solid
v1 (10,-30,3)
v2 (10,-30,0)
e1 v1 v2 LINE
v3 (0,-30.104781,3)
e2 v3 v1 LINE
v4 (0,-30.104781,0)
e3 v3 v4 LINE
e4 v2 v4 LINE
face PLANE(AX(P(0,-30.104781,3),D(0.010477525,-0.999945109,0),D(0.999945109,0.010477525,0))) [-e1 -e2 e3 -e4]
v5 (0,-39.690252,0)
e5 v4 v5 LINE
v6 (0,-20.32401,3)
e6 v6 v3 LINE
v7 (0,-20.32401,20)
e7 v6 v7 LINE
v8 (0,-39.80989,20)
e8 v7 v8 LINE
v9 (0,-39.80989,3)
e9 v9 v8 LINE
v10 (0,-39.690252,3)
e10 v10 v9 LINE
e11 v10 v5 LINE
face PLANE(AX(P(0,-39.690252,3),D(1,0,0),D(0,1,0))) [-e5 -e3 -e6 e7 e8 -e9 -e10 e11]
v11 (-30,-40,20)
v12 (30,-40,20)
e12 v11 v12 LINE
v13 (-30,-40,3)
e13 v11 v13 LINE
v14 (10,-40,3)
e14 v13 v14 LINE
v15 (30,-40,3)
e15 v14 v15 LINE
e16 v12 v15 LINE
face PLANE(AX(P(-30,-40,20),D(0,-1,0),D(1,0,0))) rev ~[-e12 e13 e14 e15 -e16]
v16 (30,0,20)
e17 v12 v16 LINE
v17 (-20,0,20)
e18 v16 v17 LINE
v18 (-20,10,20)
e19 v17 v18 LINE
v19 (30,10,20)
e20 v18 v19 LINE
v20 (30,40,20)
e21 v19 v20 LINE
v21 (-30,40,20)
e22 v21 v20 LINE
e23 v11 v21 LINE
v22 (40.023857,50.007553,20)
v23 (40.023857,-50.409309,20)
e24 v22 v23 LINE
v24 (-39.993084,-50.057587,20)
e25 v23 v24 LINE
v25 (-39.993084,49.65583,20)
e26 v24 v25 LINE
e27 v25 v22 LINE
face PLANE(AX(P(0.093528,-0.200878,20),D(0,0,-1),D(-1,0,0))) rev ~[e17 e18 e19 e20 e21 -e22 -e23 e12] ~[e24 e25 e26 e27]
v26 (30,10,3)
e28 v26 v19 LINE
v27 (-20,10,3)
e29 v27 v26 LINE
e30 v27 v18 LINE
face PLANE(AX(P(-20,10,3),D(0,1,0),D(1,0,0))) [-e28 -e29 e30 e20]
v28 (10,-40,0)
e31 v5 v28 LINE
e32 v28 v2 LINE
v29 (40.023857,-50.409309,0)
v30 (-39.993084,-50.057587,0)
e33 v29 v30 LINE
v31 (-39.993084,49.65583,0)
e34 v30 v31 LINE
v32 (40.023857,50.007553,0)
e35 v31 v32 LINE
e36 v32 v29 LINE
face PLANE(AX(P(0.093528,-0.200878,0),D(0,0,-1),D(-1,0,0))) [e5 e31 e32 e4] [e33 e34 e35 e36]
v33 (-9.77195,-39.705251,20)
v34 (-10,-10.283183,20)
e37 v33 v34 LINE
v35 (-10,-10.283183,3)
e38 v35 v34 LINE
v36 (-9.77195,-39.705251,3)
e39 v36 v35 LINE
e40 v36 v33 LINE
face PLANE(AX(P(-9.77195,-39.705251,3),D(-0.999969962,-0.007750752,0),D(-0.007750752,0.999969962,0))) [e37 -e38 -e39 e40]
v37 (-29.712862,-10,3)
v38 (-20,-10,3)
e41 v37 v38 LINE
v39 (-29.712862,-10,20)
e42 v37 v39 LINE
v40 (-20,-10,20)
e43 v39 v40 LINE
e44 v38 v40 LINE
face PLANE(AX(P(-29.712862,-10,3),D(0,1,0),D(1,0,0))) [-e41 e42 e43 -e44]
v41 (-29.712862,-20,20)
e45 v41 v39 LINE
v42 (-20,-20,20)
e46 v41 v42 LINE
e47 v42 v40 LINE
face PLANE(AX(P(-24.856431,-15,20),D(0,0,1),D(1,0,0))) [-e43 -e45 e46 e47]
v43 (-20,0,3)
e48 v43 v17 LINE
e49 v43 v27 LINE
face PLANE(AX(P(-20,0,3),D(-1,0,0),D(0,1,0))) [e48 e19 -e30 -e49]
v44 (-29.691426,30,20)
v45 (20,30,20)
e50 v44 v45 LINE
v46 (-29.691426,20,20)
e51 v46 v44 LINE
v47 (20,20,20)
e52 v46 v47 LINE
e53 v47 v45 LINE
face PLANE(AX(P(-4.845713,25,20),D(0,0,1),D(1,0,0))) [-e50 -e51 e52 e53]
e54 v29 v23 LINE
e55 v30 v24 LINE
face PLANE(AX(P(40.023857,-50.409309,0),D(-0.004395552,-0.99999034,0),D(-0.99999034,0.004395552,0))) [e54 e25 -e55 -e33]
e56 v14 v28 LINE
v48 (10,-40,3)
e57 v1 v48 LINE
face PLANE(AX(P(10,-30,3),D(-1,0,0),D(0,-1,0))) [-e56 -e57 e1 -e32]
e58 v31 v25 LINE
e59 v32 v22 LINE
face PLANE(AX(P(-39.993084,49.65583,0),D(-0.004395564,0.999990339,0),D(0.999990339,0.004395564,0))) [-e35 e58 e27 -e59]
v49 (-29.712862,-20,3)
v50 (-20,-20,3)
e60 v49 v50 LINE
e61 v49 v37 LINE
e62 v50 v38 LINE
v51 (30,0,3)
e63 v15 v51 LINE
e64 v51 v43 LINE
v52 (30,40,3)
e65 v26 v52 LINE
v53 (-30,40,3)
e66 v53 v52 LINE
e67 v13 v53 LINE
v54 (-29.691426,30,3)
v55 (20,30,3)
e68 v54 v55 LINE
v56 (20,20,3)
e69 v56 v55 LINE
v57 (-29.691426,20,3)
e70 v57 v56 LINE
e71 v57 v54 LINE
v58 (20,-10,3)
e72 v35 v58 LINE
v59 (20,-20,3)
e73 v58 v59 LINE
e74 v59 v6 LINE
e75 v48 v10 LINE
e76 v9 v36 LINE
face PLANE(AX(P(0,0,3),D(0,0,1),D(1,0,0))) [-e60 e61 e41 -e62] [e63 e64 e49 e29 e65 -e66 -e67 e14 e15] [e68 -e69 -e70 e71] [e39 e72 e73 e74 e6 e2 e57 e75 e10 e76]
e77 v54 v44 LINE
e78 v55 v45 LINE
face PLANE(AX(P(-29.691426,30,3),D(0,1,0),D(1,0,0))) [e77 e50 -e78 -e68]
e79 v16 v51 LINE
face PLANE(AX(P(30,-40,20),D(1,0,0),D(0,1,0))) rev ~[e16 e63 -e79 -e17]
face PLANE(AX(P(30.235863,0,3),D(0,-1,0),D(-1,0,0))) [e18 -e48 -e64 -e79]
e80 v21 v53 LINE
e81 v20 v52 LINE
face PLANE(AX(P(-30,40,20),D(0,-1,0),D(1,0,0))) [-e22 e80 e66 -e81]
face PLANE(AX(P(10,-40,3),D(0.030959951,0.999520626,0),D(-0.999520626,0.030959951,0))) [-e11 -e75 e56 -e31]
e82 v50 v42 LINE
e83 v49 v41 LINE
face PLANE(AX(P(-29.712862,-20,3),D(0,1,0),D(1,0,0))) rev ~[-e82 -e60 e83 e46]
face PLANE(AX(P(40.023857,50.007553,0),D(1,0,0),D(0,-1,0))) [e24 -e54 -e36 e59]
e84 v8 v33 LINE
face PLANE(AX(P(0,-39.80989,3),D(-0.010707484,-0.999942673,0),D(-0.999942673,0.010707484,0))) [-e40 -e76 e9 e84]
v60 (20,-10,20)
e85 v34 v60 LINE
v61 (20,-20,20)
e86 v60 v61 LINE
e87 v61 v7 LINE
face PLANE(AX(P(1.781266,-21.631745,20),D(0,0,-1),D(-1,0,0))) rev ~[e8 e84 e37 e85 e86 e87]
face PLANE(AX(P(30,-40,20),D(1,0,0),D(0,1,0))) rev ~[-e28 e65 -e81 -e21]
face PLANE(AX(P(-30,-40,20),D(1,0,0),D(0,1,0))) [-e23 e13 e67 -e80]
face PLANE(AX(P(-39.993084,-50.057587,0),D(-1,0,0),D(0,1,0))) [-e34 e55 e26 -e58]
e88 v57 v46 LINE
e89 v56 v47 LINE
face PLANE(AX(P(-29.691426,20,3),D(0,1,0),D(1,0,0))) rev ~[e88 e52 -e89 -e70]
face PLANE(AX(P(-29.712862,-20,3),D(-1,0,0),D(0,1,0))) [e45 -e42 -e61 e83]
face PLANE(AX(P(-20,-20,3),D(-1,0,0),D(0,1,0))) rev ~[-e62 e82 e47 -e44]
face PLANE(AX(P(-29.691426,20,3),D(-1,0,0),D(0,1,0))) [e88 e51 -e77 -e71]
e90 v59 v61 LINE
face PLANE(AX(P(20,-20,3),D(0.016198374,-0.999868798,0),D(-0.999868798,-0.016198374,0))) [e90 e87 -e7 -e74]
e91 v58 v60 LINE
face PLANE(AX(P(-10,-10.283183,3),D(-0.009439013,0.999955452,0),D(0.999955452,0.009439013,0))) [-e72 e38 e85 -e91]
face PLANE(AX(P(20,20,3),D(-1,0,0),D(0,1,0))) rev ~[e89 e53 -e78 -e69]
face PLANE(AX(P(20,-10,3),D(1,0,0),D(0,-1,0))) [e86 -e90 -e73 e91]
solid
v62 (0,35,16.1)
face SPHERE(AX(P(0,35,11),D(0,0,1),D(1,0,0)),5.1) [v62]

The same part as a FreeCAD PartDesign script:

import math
import FreeCAD as App
import Part
import Sketcher
from FreeCAD import Vector
Q = App.Units.Quantity

doc = App.newDocument("Part")
params = doc.addObject("Spreadsheet::Sheet", "Params")
for row, (alias, value) in enumerate([
    ("pad1_length", "20 mm"),
    ("sketch2_width", "60 mm"),
    ("sketch2_height", "80 mm"),
    ("pocket1_length", "17 mm"),
    ("sketch3_width", "50 mm"),
    ("sketch3_height", "10 mm"),
    ("pad2_length", "17 mm"),
    ("sketch4_height", "10 mm"),
    ("pocket2_length", "5 mm"),
    ("sketch5_radius", "5.1 mm"),
    ("revolution_angle", "360 deg"),
], start=1):
    params.set(f"A{row}", alias)
    params.set(f"B{row}", "=" + value)
    params.setAlias(f"B{row}", alias)

body = doc.addObject("PartDesign::Body", "Body")

# Sketch on XY plane
sketch1 = body.newObject("Sketcher::SketchObject", "Sketch")
sketch1.AttachmentSupport = (doc.getObject("XY_Plane"), [""])
sketch1.MapMode = "FlatFace"
sketch1.addGeometry(Part.LineSegment(Vector(40, 50, 0), Vector(-40, 50, 0)), False)
sketch1.addGeometry(Part.LineSegment(Vector(-40, 50, 0), Vector(-40, -50, 0)), False)
sketch1.addGeometry(Part.LineSegment(Vector(-40, -50, 0), Vector(40, -50, 0)), False)
sketch1.addGeometry(Part.LineSegment(Vector(40, -50, 0), Vector(40, 50, 0)), False)
sketch1.addConstraint(Sketcher.Constraint("Coincident", 0, 2, 1, 1))
sketch1.addConstraint(Sketcher.Constraint("Coincident", 1, 2, 2, 1))
sketch1.addConstraint(Sketcher.Constraint("Coincident", 2, 2, 3, 1))
sketch1.addConstraint(Sketcher.Constraint("Coincident", 3, 2, 0, 1))
sketch1.addConstraint(Sketcher.Constraint("Vertical", 1))
sketch1.addConstraint(Sketcher.Constraint("Vertical", 3))
sketch1.addConstraint(Sketcher.Constraint("Equal", 0, 2))
sketch1.addConstraint(Sketcher.Constraint("DistanceY", 1, 2, 1, 1, Q("99.713417 mm")))
sketch1.addConstraint(Sketcher.Constraint("DistanceY", 3, 1, 3, 2, Q("100.416862 mm")))
sketch1.addConstraint(Sketcher.Constraint("DistanceY", -1, 1, 0, 2, Q("49.65583 mm")))
sketch1.addConstraint(Sketcher.Constraint("DistanceX", 1, 2, 2, 2, Q("80.016941 mm")))
sketch1.addConstraint(Sketcher.Constraint("DistanceX", 0, 2, -1, 1, Q("39.993084 mm")))
pad1 = body.newObject("PartDesign::Pad", "Pad")
pad1.Profile = sketch1
pad1.setExpression("Length", "Params.pad1_length")

# Sketch on XY plane
sketch2 = body.newObject("Sketcher::SketchObject", "Sketch001")
sketch2.AttachmentSupport = (doc.getObject("XY_Plane"), [""])
sketch2.MapMode = "FlatFace"
sketch2.AttachmentOffset = App.Placement(Vector(0, 0, 20), App.Rotation())
sketch2.addGeometry(Part.LineSegment(Vector(-30, 40, 0), Vector(-30, -40, 0)), False)
sketch2.addGeometry(Part.LineSegment(Vector(-30, -40, 0), Vector(30, -40, 0)), False)
sketch2.addGeometry(Part.LineSegment(Vector(30, -40, 0), Vector(30, 40, 0)), False)
sketch2.addGeometry(Part.LineSegment(Vector(30, 40, 0), Vector(-30, 40, 0)), False)
sketch2.addConstraint(Sketcher.Constraint("Coincident", 0, 2, 1, 1))
sketch2.addConstraint(Sketcher.Constraint("Coincident", 1, 2, 2, 1))
sketch2.addConstraint(Sketcher.Constraint("Coincident", 2, 2, 3, 1))
sketch2.addConstraint(Sketcher.Constraint("Coincident", 3, 2, 0, 1))
sketch2.addConstraint(Sketcher.Constraint("Vertical", 0))
sketch2.addConstraint(Sketcher.Constraint("Horizontal", 1))
sketch2.addConstraint(Sketcher.Constraint("Vertical", 2))
sketch2.addConstraint(Sketcher.Constraint("Horizontal", 3))
sketch2.addConstraint(Sketcher.Constraint("Symmetric", 0, 2, 2, 2, -1, 1))
sketch2.addConstraint(Sketcher.Constraint("DistanceX", 1, 1, 1, 2, Q("60 mm")))
sketch2.addConstraint(Sketcher.Constraint("DistanceY", 0, 2, 0, 1, Q("80 mm")))
sketch2.setExpression("Constraints[9]", "Params.sketch2_width")
sketch2.setExpression("Constraints[10]", "Params.sketch2_height")
pocket1 = body.newObject("PartDesign::Pocket", "Pocket")
pocket1.Profile = sketch2
pocket1.setExpression("Length", "Params.pocket1_length")

# Sketch on XY plane
sketch3 = body.newObject("Sketcher::SketchObject", "Sketch002")
sketch3.AttachmentSupport = (doc.getObject("XY_Plane"), [""])
sketch3.MapMode = "FlatFace"
sketch3.AttachmentOffset = App.Placement(Vector(0, 0, 3), App.Rotation())
sketch3.addGeometry(Part.LineSegment(Vector(-29.691426, 30, 0), Vector(-29.691426, 20, 0)), False)
sketch3.addGeometry(Part.LineSegment(Vector(-29.691426, 20, 0), Vector(20, 20, 0)), False)
sketch3.addGeometry(Part.LineSegment(Vector(20, 20, 0), Vector(20, 30, 0)), False)
sketch3.addGeometry(Part.LineSegment(Vector(20, 30, 0), Vector(-29.691426, 30, 0)), False)
sketch3.addGeometry(Part.LineSegment(Vector(-20, 0, 0), Vector(30.235863, 0, 0)), False)
sketch3.addGeometry(Part.LineSegment(Vector(30.235863, 0, 0), Vector(30, 10, 0)), False)
sketch3.addGeometry(Part.LineSegment(Vector(30, 10, 0), Vector(-20, 10, 0)), False)
sketch3.addGeometry(Part.LineSegment(Vector(-20, 10, 0), Vector(-20, 0, 0)), False)
sketch3.addGeometry(Part.LineSegment(Vector(-29.712862, -10, 0), Vector(-29.712862, -20, 0)), False)
sketch3.addGeometry(Part.LineSegment(Vector(-29.712862, -20, 0), Vector(-20, -20, 0)), False)
sketch3.addGeometry(Part.LineSegment(Vector(-20, -20, 0), Vector(-20, -10, 0)), False)
sketch3.addGeometry(Part.LineSegment(Vector(-20, -10, 0), Vector(-29.712862, -10, 0)), False)
sketch3.addGeometry(Part.LineSegment(Vector(-10, -10.283183, 0), Vector(-9.77195, -39.705251, 0)), False)
sketch3.addGeometry(Part.LineSegment(Vector(-9.77195, -39.705251, 0), Vector(0, -39.80989, 0)), False)
sketch3.addGeometry(Part.LineSegment(Vector(0, -39.80989, 0), Vector(0, -20.32401, 0)), False)
sketch3.addGeometry(Part.LineSegment(Vector(0, -20.32401, 0), Vector(20, -20, 0)), False)
sketch3.addGeometry(Part.LineSegment(Vector(20, -20, 0), Vector(20, -10, 0)), False)
sketch3.addGeometry(Part.LineSegment(Vector(20, -10, 0), Vector(-10, -10.283183, 0)), False)
sketch3.addConstraint(Sketcher.Constraint("Coincident", 0, 2, 1, 1))
sketch3.addConstraint(Sketcher.Constraint("Coincident", 1, 2, 2, 1))
sketch3.addConstraint(Sketcher.Constraint("Coincident", 2, 2, 3, 1))
sketch3.addConstraint(Sketcher.Constraint("Coincident", 3, 2, 0, 1))
sketch3.addConstraint(Sketcher.Constraint("Coincident", 4, 2, 5, 1))
sketch3.addConstraint(Sketcher.Constraint("Coincident", 5, 2, 6, 1))
sketch3.addConstraint(Sketcher.Constraint("Coincident", 6, 2, 7, 1))
sketch3.addConstraint(Sketcher.Constraint("Coincident", 7, 2, 4, 1))
sketch3.addConstraint(Sketcher.Constraint("Coincident", 8, 2, 9, 1))
sketch3.addConstraint(Sketcher.Constraint("Coincident", 9, 2, 10, 1))
sketch3.addConstraint(Sketcher.Constraint("Coincident", 10, 2, 11, 1))
sketch3.addConstraint(Sketcher.Constraint("Coincident", 11, 2, 8, 1))
sketch3.addConstraint(Sketcher.Constraint("Coincident", 12, 2, 13, 1))
sketch3.addConstraint(Sketcher.Constraint("Coincident", 13, 2, 14, 1))
sketch3.addConstraint(Sketcher.Constraint("Coincident", 14, 2, 15, 1))
sketch3.addConstraint(Sketcher.Constraint("Coincident", 15, 2, 16, 1))
sketch3.addConstraint(Sketcher.Constraint("Coincident", 16, 2, 17, 1))
sketch3.addConstraint(Sketcher.Constraint("Coincident", 17, 2, 12, 1))
sketch3.addConstraint(Sketcher.Constraint("Vertical", 0))
sketch3.addConstraint(Sketcher.Constraint("Horizontal", 1))
sketch3.addConstraint(Sketcher.Constraint("Vertical", 2))
sketch3.addConstraint(Sketcher.Constraint("Horizontal", 3))
sketch3.addConstraint(Sketcher.Constraint("Horizontal", 4))
sketch3.addConstraint(Sketcher.Constraint("Horizontal", 6))
sketch3.addConstraint(Sketcher.Constraint("Vertical", 7))
sketch3.addConstraint(Sketcher.Constraint("Vertical", 8))
sketch3.addConstraint(Sketcher.Constraint("Horizontal", 9))
sketch3.addConstraint(Sketcher.Constraint("Vertical", 10))
sketch3.addConstraint(Sketcher.Constraint("Horizontal", 11))
sketch3.addConstraint(Sketcher.Constraint("Vertical", 14))
sketch3.addConstraint(Sketcher.Constraint("Vertical", 16))
sketch3.addConstraint(Sketcher.Constraint("Symmetric", 1, 2, 9, 2, -1, 1))
sketch3.addConstraint(Sketcher.Constraint("Symmetric", 6, 2, 16, 2, -1, 1))
sketch3.addConstraint(Sketcher.Constraint("Symmetric", 9, 2, 15, 2, -2))
sketch3.addConstraint(Sketcher.Constraint("PointOnObject", 4, 2, -1))
sketch3.addConstraint(Sketcher.Constraint("PointOnObject", 13, 2, -2))
sketch3.addConstraint(Sketcher.Constraint("Horizontal", 11, 2, 16, 2))
sketch3.addConstraint(Sketcher.Constraint("Equal", 2, 7))
sketch3.addConstraint(Sketcher.Constraint("Equal", 7, 8))
sketch3.addConstraint(Sketcher.Constraint("DistanceX", 6, 2, 6, 1, Q("50 mm")))
sketch3.addConstraint(Sketcher.Constraint("DistanceY", 0, 2, 0, 1, Q("10 mm")))
sketch3.addConstraint(Sketcher.Constraint("DistanceX", -1, 1, 1, 2, Q("20 mm")))
sketch3.addConstraint(Sketcher.Constraint("DistanceX", 17, 2, -1, 1, Q("10 mm")))
sketch3.addConstraint(Sketcher.Constraint("DistanceY", 14, 1, 14, 2, Q("19.48588 mm")))
sketch3.addConstraint(Sketcher.Constraint("Distance", 5, Q("10.002781 mm")))
sketch3.addConstraint(Sketcher.Constraint("Distance", 12, Q("29.422952 mm")))
sketch3.addConstraint(Sketcher.Constraint("Distance", 13, Q("9.77251 mm")))
sketch3.addConstraint(Sketcher.Constraint("DistanceX", 1, 1, 1, 2, Q("49.691427 mm")))
sketch3.addConstraint(Sketcher.Constraint("DistanceX", 9, 1, 9, 2, Q("9.712863 mm")))
sketch3.addConstraint(Sketcher.Constraint("DistanceX", 12, 2, -1, 1, Q("9.77195 mm")))
sketch3.addConstraint(Sketcher.Constraint("DistanceY", 12, 2, -1, 1, Q("39.705251 mm")))
sketch3.setExpression("Constraints[39]", "Params.sketch3_width")
sketch3.setExpression("Constraints[40]", "Params.sketch3_height")
pad2 = body.newObject("PartDesign::Pad", "Pad001")
pad2.Profile = sketch3
pad2.setExpression("Length", "Params.pad2_length")

# Sketch on XY plane
sketch4 = body.newObject("Sketcher::SketchObject", "Sketch003")
sketch4.AttachmentSupport = (doc.getObject("XY_Plane"), [""])
sketch4.MapMode = "FlatFace"
sketch4.AttachmentOffset = App.Placement(Vector(0, 0, 3), App.Rotation())
sketch4.addGeometry(Part.LineSegment(Vector(10, -30, 0), Vector(0, -30, 0)), False)
sketch4.addGeometry(Part.LineSegment(Vector(0, -30, 0), Vector(0, -40, 0)), False)
sketch4.addGeometry(Part.LineSegment(Vector(0, -40, 0), Vector(10, -40, 0)), False)
sketch4.addGeometry(Part.LineSegment(Vector(10, -40, 0), Vector(10, -30, 0)), False)
sketch4.addConstraint(Sketcher.Constraint("Coincident", 0, 2, 1, 1))
sketch4.addConstraint(Sketcher.Constraint("Coincident", 1, 2, 2, 1))
sketch4.addConstraint(Sketcher.Constraint("Coincident", 2, 2, 3, 1))
sketch4.addConstraint(Sketcher.Constraint("Coincident", 3, 2, 0, 1))
sketch4.addConstraint(Sketcher.Constraint("Vertical", 1))
sketch4.addConstraint(Sketcher.Constraint("Vertical", 3))
sketch4.addConstraint(Sketcher.Constraint("PointOnObject", 0, 2, -2))
sketch4.addConstraint(Sketcher.Constraint("DistanceY", 3, 1, 3, 2, Q("10 mm")))
sketch4.addConstraint(Sketcher.Constraint("DistanceX", -1, 1, 2, 2, Q("10 mm")))
sketch4.addConstraint(Sketcher.Constraint("DistanceY", 2, 2, -1, 1, Q("40 mm")))
sketch4.addConstraint(Sketcher.Constraint("DistanceY", 1, 2, 1, 1, Q("9.585471 mm")))
sketch4.addConstraint(Sketcher.Constraint("Distance", 0, Q("10.000549 mm")))
sketch4.setExpression("Constraints[7]", "Params.sketch4_height")
pocket2 = body.newObject("PartDesign::Pocket", "Pocket001")
pocket2.Profile = sketch4
pocket2.setExpression("Length", "Params.pocket2_length")
body2 = doc.addObject("PartDesign::Body", "Body001")

# Sketch on XZ plane
sketch5 = body2.newObject("Sketcher::SketchObject", "Sketch004")
sketch5.AttachmentSupport = (doc.getObject("XZ_Plane001"), [""])
sketch5.MapMode = "FlatFace"
sketch5.AttachmentOffset = App.Placement(Vector(0, 0, -35), App.Rotation())
sketch5.addGeometry(Part.ArcOfCircle(Part.Circle(Vector(0, 11, 0), Vector(0, 0, 1), 5), math.radians(-90), math.radians(90)), False)
sketch5.addGeometry(Part.LineSegment(Vector(0, 16, 0), Vector(0, 6, 0)), False)
sketch5.addConstraint(Sketcher.Constraint("Coincident", 0, 1, 1, 2))
sketch5.addConstraint(Sketcher.Constraint("Coincident", 1, 1, 0, 2))
sketch5.addConstraint(Sketcher.Constraint("Vertical", 1))
sketch5.addConstraint(Sketcher.Constraint("PointOnObject", 0, 3, -2))
sketch5.addConstraint(Sketcher.Constraint("PointOnObject", 0, 1, -2))
sketch5.addConstraint(Sketcher.Constraint("Radius", 0, Q("5.1 mm")))
sketch5.addConstraint(Sketcher.Constraint("DistanceY", -1, 1, 0, 3, Q("11 mm")))
sketch5.setExpression("Constraints[5]", "Params.sketch5_radius")
revolution = body2.newObject("PartDesign::Revolution", "Revolution")
revolution.Profile = sketch5
revolution.ReferenceAxis = (sketch5, ["V_Axis"])
revolution.setExpression("Angle", "Params.revolution_angle")

doc.recompute()
